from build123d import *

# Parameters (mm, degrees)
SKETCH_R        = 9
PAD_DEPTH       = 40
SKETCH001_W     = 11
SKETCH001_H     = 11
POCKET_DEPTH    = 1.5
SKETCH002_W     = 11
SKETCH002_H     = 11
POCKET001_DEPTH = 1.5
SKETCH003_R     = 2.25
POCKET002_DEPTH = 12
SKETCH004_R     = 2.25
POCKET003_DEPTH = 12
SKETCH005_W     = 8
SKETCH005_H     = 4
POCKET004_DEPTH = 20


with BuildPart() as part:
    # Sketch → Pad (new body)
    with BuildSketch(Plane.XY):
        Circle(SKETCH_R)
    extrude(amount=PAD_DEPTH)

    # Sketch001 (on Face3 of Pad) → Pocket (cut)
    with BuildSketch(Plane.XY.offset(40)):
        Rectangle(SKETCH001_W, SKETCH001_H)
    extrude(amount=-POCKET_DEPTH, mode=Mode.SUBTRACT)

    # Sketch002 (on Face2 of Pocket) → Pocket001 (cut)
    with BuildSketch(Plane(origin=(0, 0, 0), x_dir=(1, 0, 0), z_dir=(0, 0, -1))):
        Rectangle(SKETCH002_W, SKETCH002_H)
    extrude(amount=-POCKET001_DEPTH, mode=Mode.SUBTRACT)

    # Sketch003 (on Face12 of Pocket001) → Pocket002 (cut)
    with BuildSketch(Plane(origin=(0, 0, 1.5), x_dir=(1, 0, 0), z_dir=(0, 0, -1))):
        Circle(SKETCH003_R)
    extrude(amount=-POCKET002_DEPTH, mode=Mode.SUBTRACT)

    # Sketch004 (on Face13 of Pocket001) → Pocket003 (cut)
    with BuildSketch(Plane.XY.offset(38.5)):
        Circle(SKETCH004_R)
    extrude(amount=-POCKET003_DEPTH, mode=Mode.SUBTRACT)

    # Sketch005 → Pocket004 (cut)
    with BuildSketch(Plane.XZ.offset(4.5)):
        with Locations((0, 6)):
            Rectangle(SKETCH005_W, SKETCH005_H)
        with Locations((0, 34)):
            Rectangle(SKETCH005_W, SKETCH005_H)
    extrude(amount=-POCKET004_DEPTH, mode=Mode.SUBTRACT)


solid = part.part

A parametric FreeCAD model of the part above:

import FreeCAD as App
import Part
import Sketcher
from FreeCAD import Vector

doc = App.newDocument("Part")
body = doc.addObject("PartDesign::Body", "Body")

# Sketch on XY plane
sketch1 = doc.addObject("Sketcher::SketchObject", "Sketch")
body.addObject(sketch1)
sketch1.AttachmentSupport = (doc.XY_Plane, [""])
sketch1.MapMode = "FlatFace"
sketch1.addGeometry(Part.Circle(Vector(0, 0, 0), Vector(0, 0, 1), 9), False)
sketch1.addConstraint([
    Sketcher.Constraint("Coincident", 0, 3, -1, 1),
    Sketcher.Constraint("Diameter", 0, 18.0),
])
pad1 = doc.addObject("PartDesign::Pad", "Pad")
body.addObject(pad1)
pad1.Profile = sketch1
pad1.Length = 40

# Sketch on XY plane
sketch2 = doc.addObject("Sketcher::SketchObject", "Sketch001")
body.addObject(sketch2)
sketch2.AttachmentSupport = (doc.XY_Plane, [""])
sketch2.MapMode = "FlatFace"
sketch2.AttachmentOffset = App.Placement(Vector(0, 0, 40), App.Rotation())
sketch2.addGeometry([
    Part.LineSegment(Vector(-6, 6, 0), Vector(-6, -6, 0)),
    Part.LineSegment(Vector(-6, -6, 0), Vector(6, -6, 0)),
    Part.LineSegment(Vector(6, -6, 0), Vector(6, 6, 0)),
    Part.LineSegment(Vector(6, 6, 0), Vector(-6, 6, 0)),
], False)
sketch2.addConstraint([
    Sketcher.Constraint("Coincident", 0, 2, 1, 1),
    Sketcher.Constraint("Coincident", 1, 2, 2, 1),
    Sketcher.Constraint("Coincident", 2, 2, 3, 1),
    Sketcher.Constraint("Coincident", 3, 2, 0, 1),
    Sketcher.Constraint("Vertical", 0),
    Sketcher.Constraint("Horizontal", 1),
    Sketcher.Constraint("Vertical", 2),
    Sketcher.Constraint("Horizontal", 3),
    Sketcher.Constraint("Symmetric", 0, 2, 2, 2, -1, 1),
    Sketcher.Constraint("Equal", 3, 0),
    Sketcher.Constraint("DistanceX", 1, 1, 1, 2, 11.0),
])
pocket1 = doc.addObject("PartDesign::Pocket", "Pocket")
body.addObject(pocket1)
pocket1.Profile = sketch2
pocket1.Length = 1.5

# Sketch on XY plane
sketch3 = doc.addObject("Sketcher::SketchObject", "Sketch002")
body.addObject(sketch3)
sketch3.AttachmentSupport = (doc.XY_Plane, [""])
sketch3.MapMode = "FlatFace"
sketch3.addGeometry([
    Part.LineSegment(Vector(-6, -6, 0), Vector(-6, 6, 0)),
    Part.LineSegment(Vector(-6, 6, 0), Vector(6, 6, 0)),
    Part.LineSegment(Vector(6, 6, 0), Vector(6, -6, 0)),
    Part.LineSegment(Vector(6, -6, 0), Vector(-6, -6, 0)),
], False)
sketch3.addConstraint([
    Sketcher.Constraint("Coincident", 0, 2, 1, 1),
    Sketcher.Constraint("Coincident", 1, 2, 2, 1),
    Sketcher.Constraint("Coincident", 2, 2, 3, 1),
    Sketcher.Constraint("Coincident", 3, 2, 0, 1),
    Sketcher.Constraint("Vertical", 0),
    Sketcher.Constraint("Horizontal", 1),
    Sketcher.Constraint("Vertical", 2),
    Sketcher.Constraint("Horizontal", 3),
    Sketcher.Constraint("Symmetric", 0, 2, 2, 2, -1, 1),
    Sketcher.Constraint("Equal", 3, 0),
    Sketcher.Constraint("DistanceX", 1, 1, 1, 2, 11.0),
])
pocket2 = doc.addObject("PartDesign::Pocket", "Pocket001")
body.addObject(pocket2)
pocket2.Profile = sketch3
pocket2.Length = 1.5
pocket2.Reversed = True

# Sketch on XY plane
sketch4 = doc.addObject("Sketcher::SketchObject", "Sketch003")
body.addObject(sketch4)
sketch4.AttachmentSupport = (doc.XY_Plane, [""])
sketch4.MapMode = "FlatFace"
sketch4.AttachmentOffset = App.Placement(Vector(0, 0, 1.5), App.Rotation())
sketch4.addGeometry(Part.Circle(Vector(0, 0, 0), Vector(0, 0, 1), 2.2), False)
sketch4.addConstraint([
    Sketcher.Constraint("Coincident", 0, 3, -1, 1),
    Sketcher.Constraint("Diameter", 0, 4.5),
])
pocket3 = doc.addObject("PartDesign::Pocket", "Pocket002")
body.addObject(pocket3)
pocket3.Profile = sketch4
pocket3.Length = 12
pocket3.Reversed = True

# Sketch on XY plane
sketch5 = doc.addObject("Sketcher::SketchObject", "Sketch004")
body.addObject(sketch5)
sketch5.AttachmentSupport = (doc.XY_Plane, [""])
sketch5.MapMode = "FlatFace"
sketch5.AttachmentOffset = App.Placement(Vector(0, 0, 38.5), App.Rotation())
sketch5.addGeometry(Part.Circle(Vector(0, 0, 0), Vector(0, 0, 1), 2.2), False)
sketch5.addConstraint([
    Sketcher.Constraint("Coincident", 0, 3, -1, 1),
    Sketcher.Constraint("Diameter", 0, 4.5),
])
pocket4 = doc.addObject("PartDesign::Pocket", "Pocket003")
body.addObject(pocket4)
pocket4.Profile = sketch5
pocket4.Length = 12

# Sketch on XZ plane
sketch6 = doc.addObject("Sketcher::SketchObject", "Sketch005")
body.addObject(sketch6)
sketch6.AttachmentSupport = (doc.XZ_Plane, [""])
sketch6.MapMode = "FlatFace"
sketch6.AttachmentOffset = App.Placement(Vector(0, 0, 4.5), App.Rotation())
sketch6.addGeometry([
    Part.LineSegment(Vector(-4, 8, 0), Vector(-4, 4, 0)),  # 0
    Part.LineSegment(Vector(-4, 4, 0), Vector(4, 4, 0)),  # 1
    Part.LineSegment(Vector(4, 4, 0), Vector(4, 8, 0)),  # 2
    Part.LineSegment(Vector(4, 8, 0), Vector(-4, 8, 0)),  # 3
    Part.LineSegment(Vector(-4, 36, 0), Vector(-4, 32, 0)),  # 4
    Part.LineSegment(Vector(-4, 32, 0), Vector(4, 32, 0)),  # 5
    Part.LineSegment(Vector(4, 32, 0), Vector(4, 36, 0)),  # 6
    Part.LineSegment(Vector(4, 36, 0), Vector(-4, 36, 0)),  # 7
], False)
sketch6.addConstraint([
    Sketcher.Constraint("Coincident", 0, 2, 1, 1),
    Sketcher.Constraint("Coincident", 1, 2, 2, 1),
    Sketcher.Constraint("Coincident", 2, 2, 3, 1),
    Sketcher.Constraint("Coincident", 3, 2, 0, 1),
    Sketcher.Constraint("Coincident", 4, 2, 5, 1),
    Sketcher.Constraint("Coincident", 5, 2, 6, 1),
    Sketcher.Constraint("Coincident", 6, 2, 7, 1),
    Sketcher.Constraint("Coincident", 7, 2, 4, 1),
    Sketcher.Constraint("Vertical", 0),
    Sketcher.Constraint("Horizontal", 1),
    Sketcher.Constraint("Vertical", 2),
    Sketcher.Constraint("Horizontal", 3),
    Sketcher.Constraint("Vertical", 4),
    Sketcher.Constraint("Horizontal", 5),
    Sketcher.Constraint("Vertical", 6),
    Sketcher.Constraint("Horizontal", 7),
    Sketcher.Constraint("Vertical", 3, 2, 4, 2),
    Sketcher.Constraint("Vertical", 2, 2, 5, 2),
    Sketcher.Constraint("Equal", 2, 4),
    Sketcher.Constraint("DistanceX", 1, 1, 1, 2, 8.0),
    Sketcher.Constraint("DistanceY", 0, 2, 0, 1, 4.0),
    Sketcher.Constraint("DistanceX", 0, 2, -1, 1, 4.0),
    Sketcher.Constraint("DistanceY", -1, 1, 0, 2, 4.0),
    Sketcher.Constraint("DistanceY", -1, 1, 4, 2, 32.0),
])
pocket5 = doc.addObject("PartDesign::Pocket", "Pocket004")
body.addObject(pocket5)
pocket5.Profile = sketch6
pocket5.Length = 20

doc.recompute()
